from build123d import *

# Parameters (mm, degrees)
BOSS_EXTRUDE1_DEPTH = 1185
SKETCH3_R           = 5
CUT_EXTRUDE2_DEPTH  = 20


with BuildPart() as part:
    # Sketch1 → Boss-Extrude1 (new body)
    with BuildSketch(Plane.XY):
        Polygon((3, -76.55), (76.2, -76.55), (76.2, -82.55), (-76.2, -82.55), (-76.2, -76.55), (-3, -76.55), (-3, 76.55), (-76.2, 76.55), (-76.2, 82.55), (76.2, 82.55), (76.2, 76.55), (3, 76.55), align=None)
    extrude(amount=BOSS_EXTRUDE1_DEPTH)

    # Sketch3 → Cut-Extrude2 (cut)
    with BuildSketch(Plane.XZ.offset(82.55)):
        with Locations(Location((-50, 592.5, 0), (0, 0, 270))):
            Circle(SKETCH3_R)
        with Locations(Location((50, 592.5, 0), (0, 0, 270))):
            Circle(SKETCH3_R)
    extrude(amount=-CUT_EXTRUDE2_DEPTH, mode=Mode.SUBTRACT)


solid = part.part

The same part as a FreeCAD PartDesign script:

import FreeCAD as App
import Part
import Sketcher
from FreeCAD import Vector
Q = App.Units.Quantity

doc = App.newDocument("Part")
body = doc.addObject("PartDesign::Body", "Body")

sketch1 = body.newObject("Sketcher::SketchObject", "Sketch")
sketch1.AttachmentSupport = (doc.getObject("XY_Plane"), [""])
sketch1.MapMode = "FlatFace"
sketch1.addGeometry([
    Part.LineSegment(Vector(76, -77, 0), Vector(3, -77, 0)),
    Part.LineSegment(Vector(3, -77, 0), Vector(3, 77, 0)),
    Part.LineSegment(Vector(3, 77, 0), Vector(76, 77, 0)),
    Part.LineSegment(Vector(76, 77, 0), Vector(76, 83, 0)),
    Part.LineSegment(Vector(76, 83, 0), Vector(-76, 83, 0)),
    Part.LineSegment(Vector(-76, 83, 0), Vector(-76, 77, 0)),
    Part.LineSegment(Vector(-76, 77, 0), Vector(-3, 77, 0)),
    Part.LineSegment(Vector(-3, 77, 0), Vector(-3, -77, 0)),
    Part.LineSegment(Vector(-3, -77, 0), Vector(-76, -77, 0)),
    Part.LineSegment(Vector(-76, -77, 0), Vector(-76, -83, 0)),
    Part.LineSegment(Vector(-76, -83, 0), Vector(76, -83, 0)),
    Part.LineSegment(Vector(76, -83, 0), Vector(76, -77, 0)),
], False)
sketch1.addConstraint([
    Sketcher.Constraint("Coincident", 0, 2, 1, 1),
    Sketcher.Constraint("Coincident", 1, 2, 2, 1),
    Sketcher.Constraint("Coincident", 2, 2, 3, 1),
    Sketcher.Constraint("Coincident", 3, 2, 4, 1),
    Sketcher.Constraint("Coincident", 4, 2, 5, 1),
    Sketcher.Constraint("Coincident", 5, 2, 6, 1),
    Sketcher.Constraint("Coincident", 6, 2, 7, 1),
    Sketcher.Constraint("Coincident", 7, 2, 8, 1),
    Sketcher.Constraint("Coincident", 8, 2, 9, 1),
    Sketcher.Constraint("Coincident", 9, 2, 10, 1),
    Sketcher.Constraint("Coincident", 10, 2, 11, 1),
    Sketcher.Constraint("Coincident", 11, 2, 0, 1),
    Sketcher.Constraint("Horizontal", 0),
    Sketcher.Constraint("Vertical", 1),
    Sketcher.Constraint("Horizontal", 2),
    Sketcher.Constraint("Vertical", 3),
    Sketcher.Constraint("Horizontal", 4),
    Sketcher.Constraint("Vertical", 5),
    Sketcher.Constraint("Horizontal", 6),
    Sketcher.Constraint("Vertical", 7),
    Sketcher.Constraint("Horizontal", 8),
    Sketcher.Constraint("Vertical", 9),
    Sketcher.Constraint("Horizontal", 10),
    Sketcher.Constraint("Vertical", 11),
    Sketcher.Constraint("Symmetric", 0, 2, 6, 2, -1, 1),
    Sketcher.Constraint("Symmetric", 2, 2, 8, 2, -1, 1),
    Sketcher.Constraint("Symmetric", 4, 2, 10, 2, -1, 1),
    Sketcher.Constraint("Symmetric", 2, 2, 5, 2, -2),
    Sketcher.Constraint("DistanceY", 3, 1, 3, 2, Q("6 mm")),
    Sketcher.Constraint("DistanceX", 0, 2, 0, 1, Q("73.2 mm")),
    Sketcher.Constraint("DistanceX", 4, 2, 4, 1, Q("152.4 mm")),
    Sketcher.Constraint("DistanceY", 1, 1, 1, 2, Q("153.1 mm")),
])
pad1 = body.newObject("PartDesign::Pad", "Pad")
pad1.Profile = sketch1
pad1.Length = 1185

sketch2 = body.newObject("Sketcher::SketchObject", "Sketch001")
sketch2.AttachmentSupport = (doc.getObject("XZ_Plane"), [""])
sketch2.MapMode = "FlatFace"
sketch2.AttachmentOffset = App.Placement(Vector(0, 0, 82.55), App.Rotation())
sketch2.addGeometry([
    Part.Circle(Vector(-50, 592, 0), Vector(0, 0, 1), 5),
    Part.Circle(Vector(50, 592, 0), Vector(0, 0, 1), 5),
], False)
sketch2.addConstraint([
    Sketcher.Constraint("Equal", 0, 1),
    Sketcher.Constraint("Symmetric", 0, 3, 1, 3, -2),
    Sketcher.Constraint("Diameter", 0, Q("10 mm")),
    Sketcher.Constraint("DistanceX", 0, 3, -1, 1, Q("50 mm")),
    Sketcher.Constraint("DistanceY", -1, 1, 0, 3, Q("592.5 mm")),
])
pocket1 = body.newObject("PartDesign::Pocket", "Pocket")
pocket1.Profile = sketch2
pocket1.Length = 20

doc.recompute()
